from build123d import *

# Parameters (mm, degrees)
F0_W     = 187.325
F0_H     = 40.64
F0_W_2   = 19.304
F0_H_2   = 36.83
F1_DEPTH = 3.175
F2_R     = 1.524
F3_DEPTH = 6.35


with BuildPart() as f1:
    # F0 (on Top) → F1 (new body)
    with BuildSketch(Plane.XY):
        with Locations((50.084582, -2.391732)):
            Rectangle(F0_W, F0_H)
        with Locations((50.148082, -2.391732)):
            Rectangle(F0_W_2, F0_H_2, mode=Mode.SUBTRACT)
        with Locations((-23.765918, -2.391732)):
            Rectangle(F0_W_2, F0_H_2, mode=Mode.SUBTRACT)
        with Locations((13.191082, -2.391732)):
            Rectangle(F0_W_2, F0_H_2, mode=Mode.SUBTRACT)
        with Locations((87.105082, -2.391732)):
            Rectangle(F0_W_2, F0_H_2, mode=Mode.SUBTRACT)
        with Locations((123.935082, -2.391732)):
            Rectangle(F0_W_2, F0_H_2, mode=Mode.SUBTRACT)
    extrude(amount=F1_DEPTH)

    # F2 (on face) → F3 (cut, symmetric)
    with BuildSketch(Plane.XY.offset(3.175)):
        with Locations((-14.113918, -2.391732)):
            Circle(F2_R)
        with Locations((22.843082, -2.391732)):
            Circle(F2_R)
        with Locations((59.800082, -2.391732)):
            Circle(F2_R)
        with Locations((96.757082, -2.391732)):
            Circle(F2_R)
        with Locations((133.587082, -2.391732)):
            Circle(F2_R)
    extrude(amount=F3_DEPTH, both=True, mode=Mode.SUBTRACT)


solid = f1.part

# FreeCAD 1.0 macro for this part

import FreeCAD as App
import Part
import Sketcher

V = App.Vector
Q = App.Units.Quantity

doc = App.newDocument("Part")
params = doc.addObject("Spreadsheet::Sheet", "Params")
for row, (alias, value) in enumerate([
    ("sketch1_height", "1.6 in"),
    ("sketch1_width", "0.76 in"),
    ("sketch1_height2", "1.45 in"),
    ("sketch1_width2", "7.375 in"),
    ("pad1_length", "0.125 in"),
    ("sketch2_diameter", "0.12 in"),
    ("pocket1_length", "0.5 in"),
], start=1):
    params.set(f"A{row}", alias)
    params.set(f"B{row}", "=" + value)
    params.setAlias(f"B{row}", alias)

body = doc.addObject("PartDesign::Body", "Body")

# Sketch on XY plane
sketch1 = doc.addObject("Sketcher::SketchObject", "Sketch")
body.addObject(sketch1)
sketch1.AttachmentSupport = (doc.XY_Plane, [""])
sketch1.MapMode = "FlatFace"
sketch1.addGeometry([
    Part.LineSegment(V(-44, 18, 0), V(-44, -23, 0)),  # 0
    Part.LineSegment(V(-44, -23, 0), V(144, -23, 0)),  # 1
    Part.LineSegment(V(144, -23, 0), V(144, 18, 0)),  # 2
    Part.LineSegment(V(144, 18, 0), V(-44, 18, 0)),  # 3
    Part.LineSegment(V(-14, -21, 0), V(-33, -21, 0)),  # 4
    Part.LineSegment(V(-33, -21, 0), V(-33, 16, 0)),  # 5
    Part.LineSegment(V(-33, 16, 0), V(-14, 16, 0)),  # 6
    Part.LineSegment(V(-14, 16, 0), V(-14, -21, 0)),  # 7
    Part.LineSegment(V(23, -21, 0), V(4, -21, 0)),  # 8
    Part.LineSegment(V(4, -21, 0), V(4, 16, 0)),  # 9
    Part.LineSegment(V(4, 16, 0), V(23, 16, 0)),  # 10
    Part.LineSegment(V(23, 16, 0), V(23, -21, 0)),  # 11
    Part.LineSegment(V(60, -21, 0), V(40, -21, 0)),  # 12
    Part.LineSegment(V(40, -21, 0), V(40, 16, 0)),  # 13
    Part.LineSegment(V(40, 16, 0), V(60, 16, 0)),  # 14
    Part.LineSegment(V(60, 16, 0), V(60, -21, 0)),  # 15
    Part.LineSegment(V(97, -21, 0), V(77, -21, 0)),  # 16
    Part.LineSegment(V(77, -21, 0), V(77, 16, 0)),  # 17
    Part.LineSegment(V(77, 16, 0), V(97, 16, 0)),  # 18
    Part.LineSegment(V(97, 16, 0), V(97, -21, 0)),  # 19
    Part.LineSegment(V(134, -21, 0), V(114, -21, 0)),  # 20
    Part.LineSegment(V(114, -21, 0), V(114, 16, 0)),  # 21
    Part.LineSegment(V(114, 16, 0), V(134, 16, 0)),  # 22
    Part.LineSegment(V(134, 16, 0), V(134, -21, 0)),  # 23
], False)
sketch1.addConstraint([
    Sketcher.Constraint("Coincident", 0, 2, 1, 1),
    Sketcher.Constraint("Coincident", 1, 2, 2, 1),
    Sketcher.Constraint("Coincident", 2, 2, 3, 1),
    Sketcher.Constraint("Coincident", 3, 2, 0, 1),
    Sketcher.Constraint("Coincident", 4, 2, 5, 1),
    Sketcher.Constraint("Coincident", 5, 2, 6, 1),
    Sketcher.Constraint("Coincident", 6, 2, 7, 1),
    Sketcher.Constraint("Coincident", 7, 2, 4, 1),
    Sketcher.Constraint("Coincident", 8, 2, 9, 1),
    Sketcher.Constraint("Coincident", 9, 2, 10, 1),
    Sketcher.Constraint("Coincident", 10, 2, 11, 1),
    Sketcher.Constraint("Coincident", 11, 2, 8, 1),
    Sketcher.Constraint("Coincident", 12, 2, 13, 1),
    Sketcher.Constraint("Coincident", 13, 2, 14, 1),
    Sketcher.Constraint("Coincident", 14, 2, 15, 1),
    Sketcher.Constraint("Coincident", 15, 2, 12, 1),
    Sketcher.Constraint("Coincident", 16, 2, 17, 1),
    Sketcher.Constraint("Coincident", 17, 2, 18, 1),
    Sketcher.Constraint("Coincident", 18, 2, 19, 1),
    Sketcher.Constraint("Coincident", 19, 2, 16, 1),
    Sketcher.Constraint("Coincident", 20, 2, 21, 1),
    Sketcher.Constraint("Coincident", 21, 2, 22, 1),
    Sketcher.Constraint("Coincident", 22, 2, 23, 1),
    Sketcher.Constraint("Coincident", 23, 2, 20, 1),
    Sketcher.Constraint("Vertical", 0),
    Sketcher.Constraint("Horizontal", 1),
    Sketcher.Constraint("Vertical", 2),
    Sketcher.Constraint("Horizontal", 3),
    Sketcher.Constraint("Horizontal", 4),
    Sketcher.Constraint("Vertical", 5),
    Sketcher.Constraint("Horizontal", 6),
    Sketcher.Constraint("Vertical", 7),
    Sketcher.Constraint("Horizontal", 8),
    Sketcher.Constraint("Vertical", 9),
    Sketcher.Constraint("Horizontal", 10),
    Sketcher.Constraint("Vertical", 11),
    Sketcher.Constraint("Horizontal", 12),
    Sketcher.Constraint("Vertical", 13),
    Sketcher.Constraint("Horizontal", 14),
    Sketcher.Constraint("Vertical", 15),
    Sketcher.Constraint("Horizontal", 16),
    Sketcher.Constraint("Vertical", 17),
    Sketcher.Constraint("Horizontal", 18),
    Sketcher.Constraint("Vertical", 19),
    Sketcher.Constraint("Horizontal", 20),
    Sketcher.Constraint("Vertical", 21),
    Sketcher.Constraint("Horizontal", 22),
    Sketcher.Constraint("Vertical", 23),
    Sketcher.Constraint("Horizontal", 7, 2, 8, 2),
    Sketcher.Constraint("Horizontal", 6, 2, 9, 2),
    Sketcher.Constraint("Horizontal", 11, 2, 12, 2),
    Sketcher.Constraint("Horizontal", 10, 2, 13, 2),
    Sketcher.Constraint("Horizontal", 15, 2, 16, 2),
    Sketcher.Constraint("Horizontal", 14, 2, 17, 2),
    Sketcher.Constraint("Horizontal", 19, 2, 20, 2),
    Sketcher.Constraint("Horizontal", 18, 2, 21, 2),
    Sketcher.Constraint("Equal", 6, 8),
    Sketcher.Constraint("Equal", 10, 12),
    Sketcher.Constraint("Equal", 14, 16),
    Sketcher.Constraint("Equal", 18, 20),
    Sketcher.Constraint("DistanceY", 0, 2, 0, 1, Q("1.6 in")),
    Sketcher.Constraint("DistanceX", 4, 2, 4, 1, Q("0.76 in")),
    Sketcher.Constraint("DistanceY", 5, 1, 5, 2, Q("1.45 in")),
    Sketcher.Constraint("DistanceX", 0, 2, 4, 2, Q("0.4 in")),
    Sketcher.Constraint("DistanceX", 22, 2, 2, 2, Q("0.4 in")),
    Sketcher.Constraint("DistanceX", 1, 1, 1, 2, Q("7.375 in")),
    Sketcher.Constraint("DistanceX", 7, 2, 12, 2, Q("2.15 in")),
    Sketcher.Constraint("DistanceX", 11, 2, 16, 2, Q("2.15 in")),
    Sketcher.Constraint("DistanceX", 18, 2, 2, 2, Q("1.85 in")),
    Sketcher.Constraint("DistanceY", 0, 2, 4, 2, Q("0.075 in")),
    Sketcher.Constraint("DistanceX", -1, 1, 1, 2, 143.747082),
    Sketcher.Constraint("DistanceY", 4, 2, -1, 1, 20.806732),
])
sketch1.setExpression("Constraints[60]", "Params.sketch1_height")
sketch1.setExpression("Constraints[61]", "Params.sketch1_width")
sketch1.setExpression("Constraints[62]", "Params.sketch1_height2")
sketch1.setExpression("Constraints[65]", "Params.sketch1_width2")
pad1 = doc.addObject("PartDesign::Pad", "Pad")
body.addObject(pad1)
pad1.Profile = sketch1
pad1.setExpression("Length", "Params.pad1_length")

# Sketch on XY plane
sketch2 = doc.addObject("Sketcher::SketchObject", "Sketch001")
body.addObject(sketch2)
sketch2.AttachmentSupport = (doc.XY_Plane, [""])
sketch2.MapMode = "FlatFace"
sketch2.AttachmentOffset = App.Placement(V(0, 0, 0.125 * 25.4), App.Rotation())
sketch2.addGeometry([
    Part.Circle(V(-14.1, -2.4, 0), V(0, 0, 1), 1.5),  # 0
    Part.Circle(V(22.8, -2.4, 0), V(0, 0, 1), 1.5),  # 1
    Part.Circle(V(59.8, -2.4, 0), V(0, 0, 1), 1.5),  # 2
    Part.Circle(V(96.8, -2.4, 0), V(0, 0, 1), 1.5),  # 3
    Part.Circle(V(133.6, -2.4, 0), V(0, 0, 1), 1.5),  # 4
], False)
sketch2.addConstraint([
    Sketcher.Constraint("Equal", 0, 1),
    Sketcher.Constraint("Equal", 1, 2),
    Sketcher.Constraint("Equal", 2, 3),
    Sketcher.Constraint("Equal", 3, 4),
    Sketcher.Constraint("Horizontal", 0, 3, 1, 3),
    Sketcher.Constraint("Horizontal", 1, 3, 2, 3),
    Sketcher.Constraint("Horizontal", 2, 3, 3, 3),
    Sketcher.Constraint("Horizontal", 3, 3, 4, 3),
    Sketcher.Constraint("Diameter", 0, Q("0.12 in")),
    Sketcher.Constraint("DistanceX", 0, 3, 2, 3, Q("2.91 in")),
    Sketcher.Constraint("DistanceX", 1, 3, 3, 3, Q("2.91 in")),
    Sketcher.Constraint("DistanceX", 3, 3, 4, 3, Q("1.45 in")),
    Sketcher.Constraint("DistanceX", 0, 3, 1, 3, Q("1.455 in")),
    Sketcher.Constraint("DistanceX", -1, 1, 1, 3, 22.843082),
    Sketcher.Constraint("DistanceY", 0, 3, -1, 1, 2.391732),
])
sketch2.setExpression("Constraints[8]", "Params.sketch2_diameter")
pocket1 = doc.addObject("PartDesign::Pocket", "Pocket")
body.addObject(pocket1)
pocket1.Profile = sketch2
pocket1.setExpression("Length", "Params.pocket1_length")
pocket1.Midplane = True

doc.recompute()
